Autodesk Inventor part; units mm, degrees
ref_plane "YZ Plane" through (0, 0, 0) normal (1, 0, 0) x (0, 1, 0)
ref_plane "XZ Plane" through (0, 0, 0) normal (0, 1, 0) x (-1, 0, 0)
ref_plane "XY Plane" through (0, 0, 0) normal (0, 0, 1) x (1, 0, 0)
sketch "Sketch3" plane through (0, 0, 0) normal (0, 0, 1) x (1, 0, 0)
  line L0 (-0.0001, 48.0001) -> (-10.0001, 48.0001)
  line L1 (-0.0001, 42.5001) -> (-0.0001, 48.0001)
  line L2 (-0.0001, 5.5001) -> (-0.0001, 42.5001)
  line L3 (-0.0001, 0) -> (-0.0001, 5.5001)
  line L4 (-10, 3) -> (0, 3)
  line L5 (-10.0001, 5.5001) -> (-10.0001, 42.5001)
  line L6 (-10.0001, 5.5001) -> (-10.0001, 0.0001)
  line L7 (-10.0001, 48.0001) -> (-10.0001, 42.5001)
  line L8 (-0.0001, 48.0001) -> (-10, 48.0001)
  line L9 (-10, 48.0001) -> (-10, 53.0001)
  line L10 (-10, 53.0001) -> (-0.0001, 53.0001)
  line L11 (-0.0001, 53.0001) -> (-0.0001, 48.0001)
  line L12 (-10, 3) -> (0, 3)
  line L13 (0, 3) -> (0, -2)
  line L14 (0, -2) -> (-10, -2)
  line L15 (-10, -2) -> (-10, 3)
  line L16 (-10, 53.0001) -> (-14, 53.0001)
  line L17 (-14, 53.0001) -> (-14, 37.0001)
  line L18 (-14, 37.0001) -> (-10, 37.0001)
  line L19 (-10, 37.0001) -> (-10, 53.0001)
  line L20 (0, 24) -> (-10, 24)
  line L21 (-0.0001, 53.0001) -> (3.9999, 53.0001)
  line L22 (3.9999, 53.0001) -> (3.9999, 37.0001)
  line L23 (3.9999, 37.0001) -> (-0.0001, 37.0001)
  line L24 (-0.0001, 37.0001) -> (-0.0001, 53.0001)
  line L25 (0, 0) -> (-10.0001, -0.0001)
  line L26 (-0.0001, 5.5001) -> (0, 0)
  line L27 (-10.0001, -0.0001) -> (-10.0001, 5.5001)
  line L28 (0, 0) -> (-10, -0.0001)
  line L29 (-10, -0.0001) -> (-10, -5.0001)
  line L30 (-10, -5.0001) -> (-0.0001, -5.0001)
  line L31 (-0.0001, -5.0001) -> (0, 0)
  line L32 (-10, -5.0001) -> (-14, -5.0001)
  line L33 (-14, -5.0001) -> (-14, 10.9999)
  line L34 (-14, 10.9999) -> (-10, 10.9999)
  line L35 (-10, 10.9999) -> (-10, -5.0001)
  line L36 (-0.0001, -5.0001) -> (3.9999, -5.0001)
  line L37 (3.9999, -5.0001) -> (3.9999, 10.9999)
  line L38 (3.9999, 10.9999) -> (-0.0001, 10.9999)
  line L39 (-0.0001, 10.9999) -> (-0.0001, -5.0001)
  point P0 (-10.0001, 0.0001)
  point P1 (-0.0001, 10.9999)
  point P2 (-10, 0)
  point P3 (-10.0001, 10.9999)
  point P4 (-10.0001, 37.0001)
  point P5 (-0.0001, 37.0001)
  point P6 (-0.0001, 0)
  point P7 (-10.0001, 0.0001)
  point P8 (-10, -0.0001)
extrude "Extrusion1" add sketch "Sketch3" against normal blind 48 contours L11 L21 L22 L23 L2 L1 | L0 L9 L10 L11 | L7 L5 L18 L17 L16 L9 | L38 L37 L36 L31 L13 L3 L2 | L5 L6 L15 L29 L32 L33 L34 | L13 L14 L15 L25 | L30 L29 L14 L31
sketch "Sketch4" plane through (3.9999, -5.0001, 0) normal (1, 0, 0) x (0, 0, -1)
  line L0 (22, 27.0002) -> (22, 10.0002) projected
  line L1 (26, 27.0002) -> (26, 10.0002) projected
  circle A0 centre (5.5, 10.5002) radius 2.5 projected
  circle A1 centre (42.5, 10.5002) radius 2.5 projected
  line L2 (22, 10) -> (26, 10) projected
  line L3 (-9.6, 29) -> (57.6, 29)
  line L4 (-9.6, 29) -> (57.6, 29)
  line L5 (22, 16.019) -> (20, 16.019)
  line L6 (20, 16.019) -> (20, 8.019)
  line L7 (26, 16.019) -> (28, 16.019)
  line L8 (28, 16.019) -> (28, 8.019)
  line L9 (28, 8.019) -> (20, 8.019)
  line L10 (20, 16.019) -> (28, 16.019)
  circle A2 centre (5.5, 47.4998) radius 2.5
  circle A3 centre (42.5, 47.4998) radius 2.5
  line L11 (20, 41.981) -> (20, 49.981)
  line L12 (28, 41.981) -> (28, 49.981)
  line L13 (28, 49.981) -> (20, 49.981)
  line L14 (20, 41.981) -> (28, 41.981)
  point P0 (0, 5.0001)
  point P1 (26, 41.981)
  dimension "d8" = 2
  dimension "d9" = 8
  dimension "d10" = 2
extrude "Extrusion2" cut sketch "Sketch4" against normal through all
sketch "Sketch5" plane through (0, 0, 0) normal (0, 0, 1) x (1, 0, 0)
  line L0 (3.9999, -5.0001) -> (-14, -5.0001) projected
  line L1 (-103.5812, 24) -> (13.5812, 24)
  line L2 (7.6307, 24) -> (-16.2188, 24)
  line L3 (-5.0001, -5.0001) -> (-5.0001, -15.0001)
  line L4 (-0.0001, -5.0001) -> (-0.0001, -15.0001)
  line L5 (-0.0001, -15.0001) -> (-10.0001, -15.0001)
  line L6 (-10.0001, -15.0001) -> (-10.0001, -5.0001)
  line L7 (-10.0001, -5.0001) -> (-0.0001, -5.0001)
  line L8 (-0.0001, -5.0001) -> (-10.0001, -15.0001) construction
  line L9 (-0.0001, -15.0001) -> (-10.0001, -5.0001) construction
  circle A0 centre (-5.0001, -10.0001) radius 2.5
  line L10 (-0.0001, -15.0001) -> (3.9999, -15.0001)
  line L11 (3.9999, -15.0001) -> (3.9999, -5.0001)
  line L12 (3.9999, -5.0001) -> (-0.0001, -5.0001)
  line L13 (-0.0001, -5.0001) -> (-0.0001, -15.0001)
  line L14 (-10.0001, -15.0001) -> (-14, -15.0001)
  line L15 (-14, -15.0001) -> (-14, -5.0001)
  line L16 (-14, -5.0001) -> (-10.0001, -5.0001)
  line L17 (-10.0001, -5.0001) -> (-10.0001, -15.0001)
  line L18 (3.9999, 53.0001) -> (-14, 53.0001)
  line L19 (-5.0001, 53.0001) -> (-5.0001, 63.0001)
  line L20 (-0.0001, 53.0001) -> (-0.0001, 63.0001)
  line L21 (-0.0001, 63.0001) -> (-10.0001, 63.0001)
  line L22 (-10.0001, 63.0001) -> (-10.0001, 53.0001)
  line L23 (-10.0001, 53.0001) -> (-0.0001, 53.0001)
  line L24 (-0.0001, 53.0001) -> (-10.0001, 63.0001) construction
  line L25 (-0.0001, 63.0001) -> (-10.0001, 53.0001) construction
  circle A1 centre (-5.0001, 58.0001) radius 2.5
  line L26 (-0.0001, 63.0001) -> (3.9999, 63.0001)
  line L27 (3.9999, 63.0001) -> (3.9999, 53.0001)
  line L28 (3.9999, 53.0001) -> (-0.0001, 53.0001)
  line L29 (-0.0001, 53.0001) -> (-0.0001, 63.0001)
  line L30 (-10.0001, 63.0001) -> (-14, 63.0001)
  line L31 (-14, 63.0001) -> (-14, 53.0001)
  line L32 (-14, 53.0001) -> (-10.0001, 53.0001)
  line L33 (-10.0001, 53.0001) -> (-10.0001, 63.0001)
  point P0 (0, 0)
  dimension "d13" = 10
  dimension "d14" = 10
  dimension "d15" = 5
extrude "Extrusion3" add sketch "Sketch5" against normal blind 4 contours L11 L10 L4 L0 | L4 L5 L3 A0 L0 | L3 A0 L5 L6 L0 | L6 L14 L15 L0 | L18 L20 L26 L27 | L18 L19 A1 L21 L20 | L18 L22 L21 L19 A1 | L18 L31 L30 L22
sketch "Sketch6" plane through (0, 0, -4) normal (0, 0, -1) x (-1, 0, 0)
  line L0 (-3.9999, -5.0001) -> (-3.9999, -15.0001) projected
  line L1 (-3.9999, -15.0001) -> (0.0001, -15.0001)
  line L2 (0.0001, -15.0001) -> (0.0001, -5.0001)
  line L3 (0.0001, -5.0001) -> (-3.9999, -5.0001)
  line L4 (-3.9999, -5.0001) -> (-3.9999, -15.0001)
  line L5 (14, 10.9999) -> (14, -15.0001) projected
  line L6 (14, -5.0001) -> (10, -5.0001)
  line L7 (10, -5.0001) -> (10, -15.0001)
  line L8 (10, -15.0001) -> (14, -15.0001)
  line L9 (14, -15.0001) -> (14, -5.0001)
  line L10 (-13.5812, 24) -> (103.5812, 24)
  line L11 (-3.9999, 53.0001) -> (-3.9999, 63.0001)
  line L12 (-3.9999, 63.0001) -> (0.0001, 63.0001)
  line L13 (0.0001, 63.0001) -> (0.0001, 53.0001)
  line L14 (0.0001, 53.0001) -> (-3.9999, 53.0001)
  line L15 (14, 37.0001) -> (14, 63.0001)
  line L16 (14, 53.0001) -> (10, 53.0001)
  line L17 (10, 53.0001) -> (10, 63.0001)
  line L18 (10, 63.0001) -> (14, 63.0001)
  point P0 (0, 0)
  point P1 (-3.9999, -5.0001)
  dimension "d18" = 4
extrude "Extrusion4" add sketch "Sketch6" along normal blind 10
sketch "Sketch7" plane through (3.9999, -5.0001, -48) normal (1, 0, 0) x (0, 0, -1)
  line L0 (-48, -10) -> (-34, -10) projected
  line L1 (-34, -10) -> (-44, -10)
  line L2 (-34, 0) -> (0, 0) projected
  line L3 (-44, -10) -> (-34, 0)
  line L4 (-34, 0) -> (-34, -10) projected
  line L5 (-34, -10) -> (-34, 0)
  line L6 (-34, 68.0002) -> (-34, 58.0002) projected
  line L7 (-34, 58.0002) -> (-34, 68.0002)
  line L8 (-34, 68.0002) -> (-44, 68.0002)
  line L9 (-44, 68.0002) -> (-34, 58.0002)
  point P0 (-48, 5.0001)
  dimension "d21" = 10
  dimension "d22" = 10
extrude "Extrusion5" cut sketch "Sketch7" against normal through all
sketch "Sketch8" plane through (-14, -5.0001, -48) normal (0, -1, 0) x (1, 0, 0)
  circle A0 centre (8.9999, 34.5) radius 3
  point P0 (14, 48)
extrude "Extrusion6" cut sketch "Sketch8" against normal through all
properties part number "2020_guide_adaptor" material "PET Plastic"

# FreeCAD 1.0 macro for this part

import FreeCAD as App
import Part
import Sketcher
from FreeCAD import Vector


def add_polygon(sketch, points):
    """Adds a closed chain of lines whose ends are joined by coincident constraints."""
    first, n = sketch.GeometryCount, len(points)
    for a, b in zip(points, points[1:] + points[:1]):
        sketch.addGeometry(Part.LineSegment(App.Vector(*a, 0), App.Vector(*b, 0)), False)
    for i in range(n):
        sketch.addConstraint(Sketcher.Constraint("Coincident", first + i, 2, first + (i + 1) % n, 1))

doc = App.newDocument("Part")
params = doc.addObject("Spreadsheet::Sheet", "Params")
for row, (alias, value) in enumerate([
    ("sketch1_width", "18 mm"),
    ("sketch1_width2", "4 mm"),
    ("sketch1_height", "16 mm"),
    ("sketch1_height2", "11 mm"),
    ("pad1_length", "48 mm"),
    ("sketch2_width", "8 mm"),
    ("sketch2_diameter", "5 mm"),
    ("sketch3_diameter", "5 mm"),
    ("sketch3_height", "10 mm"),
    ("sketch3_width", "18 mm"),
    ("pad2_length", "4 mm"),
    ("sketch4_width", "4 mm"),
    ("sketch4_height", "10 mm"),
    ("pad3_length", "10 mm"),
    ("sketch5_width", "10 mm"),
    ("sketch6_diameter", "6 mm"),
], start=1):
    params.set(f"A{row}", alias)
    params.set(f"B{row}", "=" + value)
    params.setAlias(f"B{row}", alias)

body = doc.addObject("PartDesign::Body", "Body")
body.AllowCompound = True

sketch1 = doc.addObject("Sketcher::SketchObject", "Sketch")
body.addObject(sketch1)
sketch1.AttachmentSupport = (doc.XY_Plane, [""])
sketch1.MapMode = "FlatFace"
add_polygon(sketch1, [(4, 53), (-14, 53), (-14, 37), (-10, 37), (-10, 48), (0, 48), (0, 37), (4, 37)])
add_polygon(sketch1, [(4, 11), (0, 11), (0, 0), (-10, 0), (-10, 11), (-14, 11), (-14, -5), (4, -5)])
sketch1.addConstraint(Sketcher.Constraint("Horizontal", 0))
sketch1.addConstraint(Sketcher.Constraint("Vertical", 1))
sketch1.addConstraint(Sketcher.Constraint("Horizontal", 2))
sketch1.addConstraint(Sketcher.Constraint("Vertical", 3))
sketch1.addConstraint(Sketcher.Constraint("Horizontal", 4))
sketch1.addConstraint(Sketcher.Constraint("Vertical", 5))
sketch1.addConstraint(Sketcher.Constraint("Horizontal", 6))
sketch1.addConstraint(Sketcher.Constraint("Vertical", 7))
sketch1.addConstraint(Sketcher.Constraint("Horizontal", 8))
sketch1.addConstraint(Sketcher.Constraint("Vertical", 9))
sketch1.addConstraint(Sketcher.Constraint("Horizontal", 10))
sketch1.addConstraint(Sketcher.Constraint("Vertical", 11))
sketch1.addConstraint(Sketcher.Constraint("Horizontal", 12))
sketch1.addConstraint(Sketcher.Constraint("Vertical", 13))
sketch1.addConstraint(Sketcher.Constraint("Horizontal", 14))
sketch1.addConstraint(Sketcher.Constraint("Vertical", 15))
sketch1.addConstraint(Sketcher.Constraint("Coincident", 9, 2, -1, 1))
sketch1.addConstraint(Sketcher.Constraint("PointOnObject", 4, 2, -2))
sketch1.addConstraint(Sketcher.Constraint("Horizontal", 2, 2, 5, 2))
sketch1.addConstraint(Sketcher.Constraint("Horizontal", 8, 2, 11, 2))
sketch1.addConstraint(Sketcher.Constraint("Vertical", 3, 2, 10, 2))
sketch1.addConstraint(Sketcher.Constraint("Vertical", 1, 2, 12, 2))
sketch1.addConstraint(Sketcher.Constraint("Vertical", 7, 2, 14, 2))
sketch1.addConstraint(Sketcher.Constraint("Equal", 2, 6))
sketch1.addConstraint(Sketcher.Constraint("Equal", 5, 9))
sketch1.addConstraint(Sketcher.Constraint("Equal", 7, 13))
sketch1.addConstraint(Sketcher.Constraint("DistanceX", 0, 2, 0, 1, 18.0))
sketch1.addConstraint(Sketcher.Constraint("DistanceX", 2, 1, 2, 2, 4.0))
sketch1.addConstraint(Sketcher.Constraint("DistanceY", 1, 2, 1, 1, 16.0))
sketch1.addConstraint(Sketcher.Constraint("DistanceY", 3, 1, 3, 2, 11.0))
sketch1.addConstraint(Sketcher.Constraint("DistanceY", -1, 1, 0, 2, 53.0))
sketch1.setExpression("Constraints[42]", "Params.sketch1_width")
sketch1.setExpression("Constraints[43]", "Params.sketch1_width2")
sketch1.setExpression("Constraints[44]", "Params.sketch1_height")
sketch1.setExpression("Constraints[45]", "Params.sketch1_height2")
pad1 = doc.addObject("PartDesign::Pad", "Pad")
body.addObject(pad1)
pad1.Profile = sketch1
pad1.setExpression("Length", "Params.pad1_length")
pad1.Reversed = True

sketch2 = doc.addObject("Sketcher::SketchObject", "Sketch001")
body.addObject(sketch2)
sketch2.AttachmentSupport = (doc.YZ_Plane, [""])
sketch2.MapMode = "FlatFace"
sketch2.AttachmentOffset = App.Placement(Vector(0, 0, 3.9999), App.Rotation())
add_polygon(sketch2, [(11, -20), (3, -20), (3, -28), (11, -28)])
sketch2.addGeometry(Part.Circle(Vector(5.5, -5.5, 0), Vector(0, 0, 1), 2.5), False)
sketch2.addGeometry(Part.Circle(Vector(5.5, -42.5, 0), Vector(0, 0, 1), 2.5), False)
sketch2.addGeometry(Part.Circle(Vector(42.5, -5.5, 0), Vector(0, 0, 1), 2.5), False)
sketch2.addGeometry(Part.Circle(Vector(42.5, -42.5, 0), Vector(0, 0, 1), 2.5), False)
add_polygon(sketch2, [(45, -20), (37, -20), (37, -28), (45, -28)])
sketch2.addConstraint(Sketcher.Constraint("Horizontal", 0))
sketch2.addConstraint(Sketcher.Constraint("Vertical", 1))
sketch2.addConstraint(Sketcher.Constraint("Horizontal", 2))
sketch2.addConstraint(Sketcher.Constraint("Vertical", 3))
sketch2.addConstraint(Sketcher.Constraint("Horizontal", 8))
sketch2.addConstraint(Sketcher.Constraint("Vertical", 9))
sketch2.addConstraint(Sketcher.Constraint("Horizontal", 10))
sketch2.addConstraint(Sketcher.Constraint("Vertical", 11))
sketch2.addConstraint(Sketcher.Constraint("Equal", 4, 5))
sketch2.addConstraint(Sketcher.Constraint("Equal", 5, 6))
sketch2.addConstraint(Sketcher.Constraint("Equal", 6, 7))
sketch2.addConstraint(Sketcher.Constraint("Horizontal", 4, 3, 6, 3))
sketch2.addConstraint(Sketcher.Constraint("Horizontal", 5, 3, 7, 3))
sketch2.addConstraint(Sketcher.Constraint("Horizontal", 3, 2, 8, 2))
sketch2.addConstraint(Sketcher.Constraint("Horizontal", 2, 2, 9, 2))
sketch2.addConstraint(Sketcher.Constraint("Vertical", 4, 3, 5, 3))
sketch2.addConstraint(Sketcher.Constraint("Vertical", 6, 3, 7, 3))
sketch2.addConstraint(Sketcher.Constraint("Equal", 2, 8))
sketch2.addConstraint(Sketcher.Constraint("Equal", 10, 1))
sketch2.addConstraint(Sketcher.Constraint("DistanceX", 0, 2, 0, 1, 8.0))
sketch2.addConstraint(Sketcher.Constraint("Diameter", 4, 5.0))
sketch2.addConstraint(Sketcher.Constraint("DistanceY", 0, 2, -1, 1, 20.0))
sketch2.addConstraint(Sketcher.Constraint("DistanceY", 5, 3, 4, 3, 37.0))
sketch2.addConstraint(Sketcher.Constraint("DistanceX", -1, 1, 4, 3, 5.5))
sketch2.addConstraint(Sketcher.Constraint("DistanceY", 4, 3, -1, 1, 5.5))
sketch2.addConstraint(Sketcher.Constraint("DistanceX", -1, 1, 0, 2, 3.019))
sketch2.addConstraint(Sketcher.Constraint("DistanceX", -1, 1, 8, 2, 36.981))
sketch2.addConstraint(Sketcher.Constraint("DistanceX", -1, 1, 6, 3, 42.4997))
sketch2.setExpression("Constraints[27]", "Params.sketch2_width")
sketch2.setExpression("Constraints[28]", "Params.sketch2_diameter")
pocket1 = doc.addObject("PartDesign::Pocket", "Pocket")
body.addObject(pocket1)
pocket1.Profile = sketch2
pocket1.Type = "ThroughAll"

sketch3 = doc.addObject("Sketcher::SketchObject", "Sketch002")
body.addObject(sketch3)
sketch3.AttachmentSupport = (doc.XY_Plane, [""])
sketch3.MapMode = "FlatFace"
add_polygon(sketch3, [(4, -15), (4, -5), (-14, -5), (-14, -15)])
sketch3.addGeometry(Part.Circle(Vector(-5, -10, 0), Vector(0, 0, 1), 2.5), False)
add_polygon(sketch3, [(4, 53), (4, 63), (-14, 63), (-14, 53)])
sketch3.addGeometry(Part.Circle(Vector(-5, 58, 0), Vector(0, 0, 1), 2.5), False)
sketch3.addConstraint(Sketcher.Constraint("Vertical", 0))
sketch3.addConstraint(Sketcher.Constraint("Horizontal", 1))
sketch3.addConstraint(Sketcher.Constraint("Vertical", 2))
sketch3.addConstraint(Sketcher.Constraint("Horizontal", 3))
sketch3.addConstraint(Sketcher.Constraint("Vertical", 5))
sketch3.addConstraint(Sketcher.Constraint("Horizontal", 6))
sketch3.addConstraint(Sketcher.Constraint("Vertical", 7))
sketch3.addConstraint(Sketcher.Constraint("Horizontal", 8))
sketch3.addConstraint(Sketcher.Constraint("Equal", 4, 9))
sketch3.addConstraint(Sketcher.Constraint("Vertical", 4, 3, 9, 3))
sketch3.addConstraint(Sketcher.Constraint("Vertical", 3, 2, 5, 2))
sketch3.addConstraint(Sketcher.Constraint("Vertical", 2, 2, 6, 2))
sketch3.addConstraint(Sketcher.Constraint("Equal", 2, 5))
sketch3.addConstraint(Sketcher.Constraint("Diameter", 4, 5.0))
sketch3.addConstraint(Sketcher.Constraint("DistanceY", 0, 1, 0, 2, 10.0))
sketch3.addConstraint(Sketcher.Constraint("DistanceX", 4, 3, -1, 1, 5.0))
sketch3.addConstraint(Sketcher.Constraint("DistanceY", 4, 3, -1, 1, 10.0))
sketch3.addConstraint(Sketcher.Constraint("DistanceY", 0, 2, -1, 1, 5.0))
sketch3.addConstraint(Sketcher.Constraint("DistanceY", 9, 3, 5, 2, 5.0))
sketch3.addConstraint(Sketcher.Constraint("DistanceX", 1, 2, 1, 1, 18.0))
sketch3.addConstraint(Sketcher.Constraint("DistanceY", -1, 1, 9, 3, 58.0))
sketch3.addConstraint(Sketcher.Constraint("DistanceX", -1, 1, 0, 2, 4.0))
sketch3.setExpression("Constraints[21]", "Params.sketch3_diameter")
sketch3.setExpression("Constraints[22]", "Params.sketch3_height")
sketch3.setExpression("Constraints[27]", "Params.sketch3_width")
pad2 = doc.addObject("PartDesign::Pad", "Pad001")
body.addObject(pad2)
pad2.Profile = sketch3
pad2.setExpression("Length", "Params.pad2_length")
pad2.Reversed = True

sketch4 = doc.addObject("Sketcher::SketchObject", "Sketch003")
body.addObject(sketch4)
sketch4.AttachmentSupport = (doc.XY_Plane, [""])
sketch4.MapMode = "FlatFace"
sketch4.AttachmentOffset = App.Placement(Vector(0, 0, -4), App.Rotation())
add_polygon(sketch4, [(0, -5), (4, -5), (4, -15), (0, -15)])
add_polygon(sketch4, [(-14, -15), (-14, -5), (-10, -5), (-10, -15)])
add_polygon(sketch4, [(4, 63), (4, 53), (0, 53), (0, 63)])
add_polygon(sketch4, [(-10, 53), (-14, 53), (-14, 63), (-10, 63)])
sketch4.addConstraint(Sketcher.Constraint("Horizontal", 0))
sketch4.addConstraint(Sketcher.Constraint("Vertical", 1))
sketch4.addConstraint(Sketcher.Constraint("Horizontal", 2))
sketch4.addConstraint(Sketcher.Constraint("Vertical", 3))
sketch4.addConstraint(Sketcher.Constraint("Vertical", 4))
sketch4.addConstraint(Sketcher.Constraint("Horizontal", 5))
sketch4.addConstraint(Sketcher.Constraint("Vertical", 6))
sketch4.addConstraint(Sketcher.Constraint("Horizontal", 7))
sketch4.addConstraint(Sketcher.Constraint("Vertical", 8))
sketch4.addConstraint(Sketcher.Constraint("Horizontal", 9))
sketch4.addConstraint(Sketcher.Constraint("Vertical", 10))
sketch4.addConstraint(Sketcher.Constraint("Horizontal", 11))
sketch4.addConstraint(Sketcher.Constraint("Horizontal", 12))
sketch4.addConstraint(Sketcher.Constraint("Vertical", 13))
sketch4.addConstraint(Sketcher.Constraint("Horizontal", 14))
sketch4.addConstraint(Sketcher.Constraint("Vertical", 15))
sketch4.addConstraint(Sketcher.Constraint("PointOnObject", 2, 2, -2))
sketch4.addConstraint(Sketcher.Constraint("PointOnObject", 9, 2, -2))
sketch4.addConstraint(Sketcher.Constraint("Horizontal", 3, 2, 4, 2))
sketch4.addConstraint(Sketcher.Constraint("Horizontal", 2, 2, 6, 2))
sketch4.addConstraint(Sketcher.Constraint("Horizontal", 9, 2, 12, 2))
sketch4.addConstraint(Sketcher.Constraint("Horizontal", 11, 2, 13, 2))
sketch4.addConstraint(Sketcher.Constraint("Vertical", 1, 2, 8, 2))
sketch4.addConstraint(Sketcher.Constraint("Vertical", 7, 2, 12, 2))
sketch4.addConstraint(Sketcher.Constraint("Vertical", 6, 2, 14, 2))
sketch4.addConstraint(Sketcher.Constraint("Equal", 2, 5))
sketch4.addConstraint(Sketcher.Constraint("Equal", 6, 8))
sketch4.addConstraint(Sketcher.Constraint("DistanceX", 0, 1, 0, 2, 4.0))
sketch4.addConstraint(Sketcher.Constraint("DistanceY", 1, 2, 1, 1, 10.0))
sketch4.addConstraint(Sketcher.Constraint("DistanceY", 0, 2, -1, 1, 5.0))
sketch4.addConstraint(Sketcher.Constraint("DistanceX", 4, 2, -1, 1, 14.0))
sketch4.addConstraint(Sketcher.Constraint("DistanceY", -1, 1, 8, 2, 53.0))
sketch4.setExpression("Constraints[43]", "Params.sketch4_width")
sketch4.setExpression("Constraints[44]", "Params.sketch4_height")
pad3 = doc.addObject("PartDesign::Pad", "Pad002")
body.addObject(pad3)
pad3.Profile = sketch4
pad3.setExpression("Length", "Params.pad3_length")
pad3.Reversed = True

sketch5 = doc.addObject("Sketcher::SketchObject", "Sketch004")
body.addObject(sketch5)
sketch5.AttachmentSupport = (doc.YZ_Plane, [""])
sketch5.MapMode = "FlatFace"
sketch5.AttachmentOffset = App.Placement(Vector(0, 0, 3.9999), App.Rotation())
add_polygon(sketch5, [(-5, -14), (-15, -4), (-15, -14)])
add_polygon(sketch5, [(53, -14), (63, -14), (63, -4)])
sketch5.addConstraint(Sketcher.Constraint("Vertical", 1))
sketch5.addConstraint(Sketcher.Constraint("Horizontal", 2))
sketch5.addConstraint(Sketcher.Constraint("Horizontal", 3))
sketch5.addConstraint(Sketcher.Constraint("Vertical", 4))
sketch5.addConstraint(Sketcher.Constraint("Perpendicular", 0, 5))
sketch5.addConstraint(Sketcher.Constraint("Horizontal", 2, 2, 3, 2))
sketch5.addConstraint(Sketcher.Constraint("Horizontal", 0, 2, 4, 2))
sketch5.addConstraint(Sketcher.Constraint("Equal", 2, 3))
sketch5.addConstraint(Sketcher.Constraint("DistanceX", 2, 1, 2, 2, 10.0))
sketch5.addConstraint(Sketcher.Constraint("DistanceX", 0, 2, -1, 1, 15.0))
sketch5.addConstraint(Sketcher.Constraint("DistanceY", 0, 2, -1, 1, 4.0))
sketch5.addConstraint(Sketcher.Constraint("DistanceX", -1, 1, 3, 2, 63.0))
sketch5.setExpression("Constraints[14]", "Params.sketch5_width")
pocket2 = doc.addObject("PartDesign::Pocket", "Pocket001")
body.addObject(pocket2)
pocket2.Profile = sketch5
pocket2.Type = "ThroughAll"

sketch6 = doc.addObject("Sketcher::SketchObject", "Sketch005")
body.addObject(sketch6)
sketch6.AttachmentSupport = (doc.XZ_Plane, [""])
sketch6.MapMode = "FlatFace"
sketch6.AttachmentOffset = App.Placement(Vector(0, 0, 5.0001), App.Rotation())
sketch6.addGeometry(Part.Circle(Vector(-5, -13.5, 0), Vector(0, 0, 1), 3), False)
sketch6.addConstraint(Sketcher.Constraint("Diameter", 0, 6.0))
sketch6.addConstraint(Sketcher.Constraint("DistanceX", 0, 3, -1, 1, 5.0))
sketch6.addConstraint(Sketcher.Constraint("DistanceY", 0, 3, -1, 1, 13.5))
sketch6.setExpression("Constraints[0]", "Params.sketch6_diameter")
pocket3 = doc.addObject("PartDesign::Pocket", "Pocket002")
body.addObject(pocket3)
pocket3.Profile = sketch6
pocket3.Type = "ThroughAll"

doc.recompute()
